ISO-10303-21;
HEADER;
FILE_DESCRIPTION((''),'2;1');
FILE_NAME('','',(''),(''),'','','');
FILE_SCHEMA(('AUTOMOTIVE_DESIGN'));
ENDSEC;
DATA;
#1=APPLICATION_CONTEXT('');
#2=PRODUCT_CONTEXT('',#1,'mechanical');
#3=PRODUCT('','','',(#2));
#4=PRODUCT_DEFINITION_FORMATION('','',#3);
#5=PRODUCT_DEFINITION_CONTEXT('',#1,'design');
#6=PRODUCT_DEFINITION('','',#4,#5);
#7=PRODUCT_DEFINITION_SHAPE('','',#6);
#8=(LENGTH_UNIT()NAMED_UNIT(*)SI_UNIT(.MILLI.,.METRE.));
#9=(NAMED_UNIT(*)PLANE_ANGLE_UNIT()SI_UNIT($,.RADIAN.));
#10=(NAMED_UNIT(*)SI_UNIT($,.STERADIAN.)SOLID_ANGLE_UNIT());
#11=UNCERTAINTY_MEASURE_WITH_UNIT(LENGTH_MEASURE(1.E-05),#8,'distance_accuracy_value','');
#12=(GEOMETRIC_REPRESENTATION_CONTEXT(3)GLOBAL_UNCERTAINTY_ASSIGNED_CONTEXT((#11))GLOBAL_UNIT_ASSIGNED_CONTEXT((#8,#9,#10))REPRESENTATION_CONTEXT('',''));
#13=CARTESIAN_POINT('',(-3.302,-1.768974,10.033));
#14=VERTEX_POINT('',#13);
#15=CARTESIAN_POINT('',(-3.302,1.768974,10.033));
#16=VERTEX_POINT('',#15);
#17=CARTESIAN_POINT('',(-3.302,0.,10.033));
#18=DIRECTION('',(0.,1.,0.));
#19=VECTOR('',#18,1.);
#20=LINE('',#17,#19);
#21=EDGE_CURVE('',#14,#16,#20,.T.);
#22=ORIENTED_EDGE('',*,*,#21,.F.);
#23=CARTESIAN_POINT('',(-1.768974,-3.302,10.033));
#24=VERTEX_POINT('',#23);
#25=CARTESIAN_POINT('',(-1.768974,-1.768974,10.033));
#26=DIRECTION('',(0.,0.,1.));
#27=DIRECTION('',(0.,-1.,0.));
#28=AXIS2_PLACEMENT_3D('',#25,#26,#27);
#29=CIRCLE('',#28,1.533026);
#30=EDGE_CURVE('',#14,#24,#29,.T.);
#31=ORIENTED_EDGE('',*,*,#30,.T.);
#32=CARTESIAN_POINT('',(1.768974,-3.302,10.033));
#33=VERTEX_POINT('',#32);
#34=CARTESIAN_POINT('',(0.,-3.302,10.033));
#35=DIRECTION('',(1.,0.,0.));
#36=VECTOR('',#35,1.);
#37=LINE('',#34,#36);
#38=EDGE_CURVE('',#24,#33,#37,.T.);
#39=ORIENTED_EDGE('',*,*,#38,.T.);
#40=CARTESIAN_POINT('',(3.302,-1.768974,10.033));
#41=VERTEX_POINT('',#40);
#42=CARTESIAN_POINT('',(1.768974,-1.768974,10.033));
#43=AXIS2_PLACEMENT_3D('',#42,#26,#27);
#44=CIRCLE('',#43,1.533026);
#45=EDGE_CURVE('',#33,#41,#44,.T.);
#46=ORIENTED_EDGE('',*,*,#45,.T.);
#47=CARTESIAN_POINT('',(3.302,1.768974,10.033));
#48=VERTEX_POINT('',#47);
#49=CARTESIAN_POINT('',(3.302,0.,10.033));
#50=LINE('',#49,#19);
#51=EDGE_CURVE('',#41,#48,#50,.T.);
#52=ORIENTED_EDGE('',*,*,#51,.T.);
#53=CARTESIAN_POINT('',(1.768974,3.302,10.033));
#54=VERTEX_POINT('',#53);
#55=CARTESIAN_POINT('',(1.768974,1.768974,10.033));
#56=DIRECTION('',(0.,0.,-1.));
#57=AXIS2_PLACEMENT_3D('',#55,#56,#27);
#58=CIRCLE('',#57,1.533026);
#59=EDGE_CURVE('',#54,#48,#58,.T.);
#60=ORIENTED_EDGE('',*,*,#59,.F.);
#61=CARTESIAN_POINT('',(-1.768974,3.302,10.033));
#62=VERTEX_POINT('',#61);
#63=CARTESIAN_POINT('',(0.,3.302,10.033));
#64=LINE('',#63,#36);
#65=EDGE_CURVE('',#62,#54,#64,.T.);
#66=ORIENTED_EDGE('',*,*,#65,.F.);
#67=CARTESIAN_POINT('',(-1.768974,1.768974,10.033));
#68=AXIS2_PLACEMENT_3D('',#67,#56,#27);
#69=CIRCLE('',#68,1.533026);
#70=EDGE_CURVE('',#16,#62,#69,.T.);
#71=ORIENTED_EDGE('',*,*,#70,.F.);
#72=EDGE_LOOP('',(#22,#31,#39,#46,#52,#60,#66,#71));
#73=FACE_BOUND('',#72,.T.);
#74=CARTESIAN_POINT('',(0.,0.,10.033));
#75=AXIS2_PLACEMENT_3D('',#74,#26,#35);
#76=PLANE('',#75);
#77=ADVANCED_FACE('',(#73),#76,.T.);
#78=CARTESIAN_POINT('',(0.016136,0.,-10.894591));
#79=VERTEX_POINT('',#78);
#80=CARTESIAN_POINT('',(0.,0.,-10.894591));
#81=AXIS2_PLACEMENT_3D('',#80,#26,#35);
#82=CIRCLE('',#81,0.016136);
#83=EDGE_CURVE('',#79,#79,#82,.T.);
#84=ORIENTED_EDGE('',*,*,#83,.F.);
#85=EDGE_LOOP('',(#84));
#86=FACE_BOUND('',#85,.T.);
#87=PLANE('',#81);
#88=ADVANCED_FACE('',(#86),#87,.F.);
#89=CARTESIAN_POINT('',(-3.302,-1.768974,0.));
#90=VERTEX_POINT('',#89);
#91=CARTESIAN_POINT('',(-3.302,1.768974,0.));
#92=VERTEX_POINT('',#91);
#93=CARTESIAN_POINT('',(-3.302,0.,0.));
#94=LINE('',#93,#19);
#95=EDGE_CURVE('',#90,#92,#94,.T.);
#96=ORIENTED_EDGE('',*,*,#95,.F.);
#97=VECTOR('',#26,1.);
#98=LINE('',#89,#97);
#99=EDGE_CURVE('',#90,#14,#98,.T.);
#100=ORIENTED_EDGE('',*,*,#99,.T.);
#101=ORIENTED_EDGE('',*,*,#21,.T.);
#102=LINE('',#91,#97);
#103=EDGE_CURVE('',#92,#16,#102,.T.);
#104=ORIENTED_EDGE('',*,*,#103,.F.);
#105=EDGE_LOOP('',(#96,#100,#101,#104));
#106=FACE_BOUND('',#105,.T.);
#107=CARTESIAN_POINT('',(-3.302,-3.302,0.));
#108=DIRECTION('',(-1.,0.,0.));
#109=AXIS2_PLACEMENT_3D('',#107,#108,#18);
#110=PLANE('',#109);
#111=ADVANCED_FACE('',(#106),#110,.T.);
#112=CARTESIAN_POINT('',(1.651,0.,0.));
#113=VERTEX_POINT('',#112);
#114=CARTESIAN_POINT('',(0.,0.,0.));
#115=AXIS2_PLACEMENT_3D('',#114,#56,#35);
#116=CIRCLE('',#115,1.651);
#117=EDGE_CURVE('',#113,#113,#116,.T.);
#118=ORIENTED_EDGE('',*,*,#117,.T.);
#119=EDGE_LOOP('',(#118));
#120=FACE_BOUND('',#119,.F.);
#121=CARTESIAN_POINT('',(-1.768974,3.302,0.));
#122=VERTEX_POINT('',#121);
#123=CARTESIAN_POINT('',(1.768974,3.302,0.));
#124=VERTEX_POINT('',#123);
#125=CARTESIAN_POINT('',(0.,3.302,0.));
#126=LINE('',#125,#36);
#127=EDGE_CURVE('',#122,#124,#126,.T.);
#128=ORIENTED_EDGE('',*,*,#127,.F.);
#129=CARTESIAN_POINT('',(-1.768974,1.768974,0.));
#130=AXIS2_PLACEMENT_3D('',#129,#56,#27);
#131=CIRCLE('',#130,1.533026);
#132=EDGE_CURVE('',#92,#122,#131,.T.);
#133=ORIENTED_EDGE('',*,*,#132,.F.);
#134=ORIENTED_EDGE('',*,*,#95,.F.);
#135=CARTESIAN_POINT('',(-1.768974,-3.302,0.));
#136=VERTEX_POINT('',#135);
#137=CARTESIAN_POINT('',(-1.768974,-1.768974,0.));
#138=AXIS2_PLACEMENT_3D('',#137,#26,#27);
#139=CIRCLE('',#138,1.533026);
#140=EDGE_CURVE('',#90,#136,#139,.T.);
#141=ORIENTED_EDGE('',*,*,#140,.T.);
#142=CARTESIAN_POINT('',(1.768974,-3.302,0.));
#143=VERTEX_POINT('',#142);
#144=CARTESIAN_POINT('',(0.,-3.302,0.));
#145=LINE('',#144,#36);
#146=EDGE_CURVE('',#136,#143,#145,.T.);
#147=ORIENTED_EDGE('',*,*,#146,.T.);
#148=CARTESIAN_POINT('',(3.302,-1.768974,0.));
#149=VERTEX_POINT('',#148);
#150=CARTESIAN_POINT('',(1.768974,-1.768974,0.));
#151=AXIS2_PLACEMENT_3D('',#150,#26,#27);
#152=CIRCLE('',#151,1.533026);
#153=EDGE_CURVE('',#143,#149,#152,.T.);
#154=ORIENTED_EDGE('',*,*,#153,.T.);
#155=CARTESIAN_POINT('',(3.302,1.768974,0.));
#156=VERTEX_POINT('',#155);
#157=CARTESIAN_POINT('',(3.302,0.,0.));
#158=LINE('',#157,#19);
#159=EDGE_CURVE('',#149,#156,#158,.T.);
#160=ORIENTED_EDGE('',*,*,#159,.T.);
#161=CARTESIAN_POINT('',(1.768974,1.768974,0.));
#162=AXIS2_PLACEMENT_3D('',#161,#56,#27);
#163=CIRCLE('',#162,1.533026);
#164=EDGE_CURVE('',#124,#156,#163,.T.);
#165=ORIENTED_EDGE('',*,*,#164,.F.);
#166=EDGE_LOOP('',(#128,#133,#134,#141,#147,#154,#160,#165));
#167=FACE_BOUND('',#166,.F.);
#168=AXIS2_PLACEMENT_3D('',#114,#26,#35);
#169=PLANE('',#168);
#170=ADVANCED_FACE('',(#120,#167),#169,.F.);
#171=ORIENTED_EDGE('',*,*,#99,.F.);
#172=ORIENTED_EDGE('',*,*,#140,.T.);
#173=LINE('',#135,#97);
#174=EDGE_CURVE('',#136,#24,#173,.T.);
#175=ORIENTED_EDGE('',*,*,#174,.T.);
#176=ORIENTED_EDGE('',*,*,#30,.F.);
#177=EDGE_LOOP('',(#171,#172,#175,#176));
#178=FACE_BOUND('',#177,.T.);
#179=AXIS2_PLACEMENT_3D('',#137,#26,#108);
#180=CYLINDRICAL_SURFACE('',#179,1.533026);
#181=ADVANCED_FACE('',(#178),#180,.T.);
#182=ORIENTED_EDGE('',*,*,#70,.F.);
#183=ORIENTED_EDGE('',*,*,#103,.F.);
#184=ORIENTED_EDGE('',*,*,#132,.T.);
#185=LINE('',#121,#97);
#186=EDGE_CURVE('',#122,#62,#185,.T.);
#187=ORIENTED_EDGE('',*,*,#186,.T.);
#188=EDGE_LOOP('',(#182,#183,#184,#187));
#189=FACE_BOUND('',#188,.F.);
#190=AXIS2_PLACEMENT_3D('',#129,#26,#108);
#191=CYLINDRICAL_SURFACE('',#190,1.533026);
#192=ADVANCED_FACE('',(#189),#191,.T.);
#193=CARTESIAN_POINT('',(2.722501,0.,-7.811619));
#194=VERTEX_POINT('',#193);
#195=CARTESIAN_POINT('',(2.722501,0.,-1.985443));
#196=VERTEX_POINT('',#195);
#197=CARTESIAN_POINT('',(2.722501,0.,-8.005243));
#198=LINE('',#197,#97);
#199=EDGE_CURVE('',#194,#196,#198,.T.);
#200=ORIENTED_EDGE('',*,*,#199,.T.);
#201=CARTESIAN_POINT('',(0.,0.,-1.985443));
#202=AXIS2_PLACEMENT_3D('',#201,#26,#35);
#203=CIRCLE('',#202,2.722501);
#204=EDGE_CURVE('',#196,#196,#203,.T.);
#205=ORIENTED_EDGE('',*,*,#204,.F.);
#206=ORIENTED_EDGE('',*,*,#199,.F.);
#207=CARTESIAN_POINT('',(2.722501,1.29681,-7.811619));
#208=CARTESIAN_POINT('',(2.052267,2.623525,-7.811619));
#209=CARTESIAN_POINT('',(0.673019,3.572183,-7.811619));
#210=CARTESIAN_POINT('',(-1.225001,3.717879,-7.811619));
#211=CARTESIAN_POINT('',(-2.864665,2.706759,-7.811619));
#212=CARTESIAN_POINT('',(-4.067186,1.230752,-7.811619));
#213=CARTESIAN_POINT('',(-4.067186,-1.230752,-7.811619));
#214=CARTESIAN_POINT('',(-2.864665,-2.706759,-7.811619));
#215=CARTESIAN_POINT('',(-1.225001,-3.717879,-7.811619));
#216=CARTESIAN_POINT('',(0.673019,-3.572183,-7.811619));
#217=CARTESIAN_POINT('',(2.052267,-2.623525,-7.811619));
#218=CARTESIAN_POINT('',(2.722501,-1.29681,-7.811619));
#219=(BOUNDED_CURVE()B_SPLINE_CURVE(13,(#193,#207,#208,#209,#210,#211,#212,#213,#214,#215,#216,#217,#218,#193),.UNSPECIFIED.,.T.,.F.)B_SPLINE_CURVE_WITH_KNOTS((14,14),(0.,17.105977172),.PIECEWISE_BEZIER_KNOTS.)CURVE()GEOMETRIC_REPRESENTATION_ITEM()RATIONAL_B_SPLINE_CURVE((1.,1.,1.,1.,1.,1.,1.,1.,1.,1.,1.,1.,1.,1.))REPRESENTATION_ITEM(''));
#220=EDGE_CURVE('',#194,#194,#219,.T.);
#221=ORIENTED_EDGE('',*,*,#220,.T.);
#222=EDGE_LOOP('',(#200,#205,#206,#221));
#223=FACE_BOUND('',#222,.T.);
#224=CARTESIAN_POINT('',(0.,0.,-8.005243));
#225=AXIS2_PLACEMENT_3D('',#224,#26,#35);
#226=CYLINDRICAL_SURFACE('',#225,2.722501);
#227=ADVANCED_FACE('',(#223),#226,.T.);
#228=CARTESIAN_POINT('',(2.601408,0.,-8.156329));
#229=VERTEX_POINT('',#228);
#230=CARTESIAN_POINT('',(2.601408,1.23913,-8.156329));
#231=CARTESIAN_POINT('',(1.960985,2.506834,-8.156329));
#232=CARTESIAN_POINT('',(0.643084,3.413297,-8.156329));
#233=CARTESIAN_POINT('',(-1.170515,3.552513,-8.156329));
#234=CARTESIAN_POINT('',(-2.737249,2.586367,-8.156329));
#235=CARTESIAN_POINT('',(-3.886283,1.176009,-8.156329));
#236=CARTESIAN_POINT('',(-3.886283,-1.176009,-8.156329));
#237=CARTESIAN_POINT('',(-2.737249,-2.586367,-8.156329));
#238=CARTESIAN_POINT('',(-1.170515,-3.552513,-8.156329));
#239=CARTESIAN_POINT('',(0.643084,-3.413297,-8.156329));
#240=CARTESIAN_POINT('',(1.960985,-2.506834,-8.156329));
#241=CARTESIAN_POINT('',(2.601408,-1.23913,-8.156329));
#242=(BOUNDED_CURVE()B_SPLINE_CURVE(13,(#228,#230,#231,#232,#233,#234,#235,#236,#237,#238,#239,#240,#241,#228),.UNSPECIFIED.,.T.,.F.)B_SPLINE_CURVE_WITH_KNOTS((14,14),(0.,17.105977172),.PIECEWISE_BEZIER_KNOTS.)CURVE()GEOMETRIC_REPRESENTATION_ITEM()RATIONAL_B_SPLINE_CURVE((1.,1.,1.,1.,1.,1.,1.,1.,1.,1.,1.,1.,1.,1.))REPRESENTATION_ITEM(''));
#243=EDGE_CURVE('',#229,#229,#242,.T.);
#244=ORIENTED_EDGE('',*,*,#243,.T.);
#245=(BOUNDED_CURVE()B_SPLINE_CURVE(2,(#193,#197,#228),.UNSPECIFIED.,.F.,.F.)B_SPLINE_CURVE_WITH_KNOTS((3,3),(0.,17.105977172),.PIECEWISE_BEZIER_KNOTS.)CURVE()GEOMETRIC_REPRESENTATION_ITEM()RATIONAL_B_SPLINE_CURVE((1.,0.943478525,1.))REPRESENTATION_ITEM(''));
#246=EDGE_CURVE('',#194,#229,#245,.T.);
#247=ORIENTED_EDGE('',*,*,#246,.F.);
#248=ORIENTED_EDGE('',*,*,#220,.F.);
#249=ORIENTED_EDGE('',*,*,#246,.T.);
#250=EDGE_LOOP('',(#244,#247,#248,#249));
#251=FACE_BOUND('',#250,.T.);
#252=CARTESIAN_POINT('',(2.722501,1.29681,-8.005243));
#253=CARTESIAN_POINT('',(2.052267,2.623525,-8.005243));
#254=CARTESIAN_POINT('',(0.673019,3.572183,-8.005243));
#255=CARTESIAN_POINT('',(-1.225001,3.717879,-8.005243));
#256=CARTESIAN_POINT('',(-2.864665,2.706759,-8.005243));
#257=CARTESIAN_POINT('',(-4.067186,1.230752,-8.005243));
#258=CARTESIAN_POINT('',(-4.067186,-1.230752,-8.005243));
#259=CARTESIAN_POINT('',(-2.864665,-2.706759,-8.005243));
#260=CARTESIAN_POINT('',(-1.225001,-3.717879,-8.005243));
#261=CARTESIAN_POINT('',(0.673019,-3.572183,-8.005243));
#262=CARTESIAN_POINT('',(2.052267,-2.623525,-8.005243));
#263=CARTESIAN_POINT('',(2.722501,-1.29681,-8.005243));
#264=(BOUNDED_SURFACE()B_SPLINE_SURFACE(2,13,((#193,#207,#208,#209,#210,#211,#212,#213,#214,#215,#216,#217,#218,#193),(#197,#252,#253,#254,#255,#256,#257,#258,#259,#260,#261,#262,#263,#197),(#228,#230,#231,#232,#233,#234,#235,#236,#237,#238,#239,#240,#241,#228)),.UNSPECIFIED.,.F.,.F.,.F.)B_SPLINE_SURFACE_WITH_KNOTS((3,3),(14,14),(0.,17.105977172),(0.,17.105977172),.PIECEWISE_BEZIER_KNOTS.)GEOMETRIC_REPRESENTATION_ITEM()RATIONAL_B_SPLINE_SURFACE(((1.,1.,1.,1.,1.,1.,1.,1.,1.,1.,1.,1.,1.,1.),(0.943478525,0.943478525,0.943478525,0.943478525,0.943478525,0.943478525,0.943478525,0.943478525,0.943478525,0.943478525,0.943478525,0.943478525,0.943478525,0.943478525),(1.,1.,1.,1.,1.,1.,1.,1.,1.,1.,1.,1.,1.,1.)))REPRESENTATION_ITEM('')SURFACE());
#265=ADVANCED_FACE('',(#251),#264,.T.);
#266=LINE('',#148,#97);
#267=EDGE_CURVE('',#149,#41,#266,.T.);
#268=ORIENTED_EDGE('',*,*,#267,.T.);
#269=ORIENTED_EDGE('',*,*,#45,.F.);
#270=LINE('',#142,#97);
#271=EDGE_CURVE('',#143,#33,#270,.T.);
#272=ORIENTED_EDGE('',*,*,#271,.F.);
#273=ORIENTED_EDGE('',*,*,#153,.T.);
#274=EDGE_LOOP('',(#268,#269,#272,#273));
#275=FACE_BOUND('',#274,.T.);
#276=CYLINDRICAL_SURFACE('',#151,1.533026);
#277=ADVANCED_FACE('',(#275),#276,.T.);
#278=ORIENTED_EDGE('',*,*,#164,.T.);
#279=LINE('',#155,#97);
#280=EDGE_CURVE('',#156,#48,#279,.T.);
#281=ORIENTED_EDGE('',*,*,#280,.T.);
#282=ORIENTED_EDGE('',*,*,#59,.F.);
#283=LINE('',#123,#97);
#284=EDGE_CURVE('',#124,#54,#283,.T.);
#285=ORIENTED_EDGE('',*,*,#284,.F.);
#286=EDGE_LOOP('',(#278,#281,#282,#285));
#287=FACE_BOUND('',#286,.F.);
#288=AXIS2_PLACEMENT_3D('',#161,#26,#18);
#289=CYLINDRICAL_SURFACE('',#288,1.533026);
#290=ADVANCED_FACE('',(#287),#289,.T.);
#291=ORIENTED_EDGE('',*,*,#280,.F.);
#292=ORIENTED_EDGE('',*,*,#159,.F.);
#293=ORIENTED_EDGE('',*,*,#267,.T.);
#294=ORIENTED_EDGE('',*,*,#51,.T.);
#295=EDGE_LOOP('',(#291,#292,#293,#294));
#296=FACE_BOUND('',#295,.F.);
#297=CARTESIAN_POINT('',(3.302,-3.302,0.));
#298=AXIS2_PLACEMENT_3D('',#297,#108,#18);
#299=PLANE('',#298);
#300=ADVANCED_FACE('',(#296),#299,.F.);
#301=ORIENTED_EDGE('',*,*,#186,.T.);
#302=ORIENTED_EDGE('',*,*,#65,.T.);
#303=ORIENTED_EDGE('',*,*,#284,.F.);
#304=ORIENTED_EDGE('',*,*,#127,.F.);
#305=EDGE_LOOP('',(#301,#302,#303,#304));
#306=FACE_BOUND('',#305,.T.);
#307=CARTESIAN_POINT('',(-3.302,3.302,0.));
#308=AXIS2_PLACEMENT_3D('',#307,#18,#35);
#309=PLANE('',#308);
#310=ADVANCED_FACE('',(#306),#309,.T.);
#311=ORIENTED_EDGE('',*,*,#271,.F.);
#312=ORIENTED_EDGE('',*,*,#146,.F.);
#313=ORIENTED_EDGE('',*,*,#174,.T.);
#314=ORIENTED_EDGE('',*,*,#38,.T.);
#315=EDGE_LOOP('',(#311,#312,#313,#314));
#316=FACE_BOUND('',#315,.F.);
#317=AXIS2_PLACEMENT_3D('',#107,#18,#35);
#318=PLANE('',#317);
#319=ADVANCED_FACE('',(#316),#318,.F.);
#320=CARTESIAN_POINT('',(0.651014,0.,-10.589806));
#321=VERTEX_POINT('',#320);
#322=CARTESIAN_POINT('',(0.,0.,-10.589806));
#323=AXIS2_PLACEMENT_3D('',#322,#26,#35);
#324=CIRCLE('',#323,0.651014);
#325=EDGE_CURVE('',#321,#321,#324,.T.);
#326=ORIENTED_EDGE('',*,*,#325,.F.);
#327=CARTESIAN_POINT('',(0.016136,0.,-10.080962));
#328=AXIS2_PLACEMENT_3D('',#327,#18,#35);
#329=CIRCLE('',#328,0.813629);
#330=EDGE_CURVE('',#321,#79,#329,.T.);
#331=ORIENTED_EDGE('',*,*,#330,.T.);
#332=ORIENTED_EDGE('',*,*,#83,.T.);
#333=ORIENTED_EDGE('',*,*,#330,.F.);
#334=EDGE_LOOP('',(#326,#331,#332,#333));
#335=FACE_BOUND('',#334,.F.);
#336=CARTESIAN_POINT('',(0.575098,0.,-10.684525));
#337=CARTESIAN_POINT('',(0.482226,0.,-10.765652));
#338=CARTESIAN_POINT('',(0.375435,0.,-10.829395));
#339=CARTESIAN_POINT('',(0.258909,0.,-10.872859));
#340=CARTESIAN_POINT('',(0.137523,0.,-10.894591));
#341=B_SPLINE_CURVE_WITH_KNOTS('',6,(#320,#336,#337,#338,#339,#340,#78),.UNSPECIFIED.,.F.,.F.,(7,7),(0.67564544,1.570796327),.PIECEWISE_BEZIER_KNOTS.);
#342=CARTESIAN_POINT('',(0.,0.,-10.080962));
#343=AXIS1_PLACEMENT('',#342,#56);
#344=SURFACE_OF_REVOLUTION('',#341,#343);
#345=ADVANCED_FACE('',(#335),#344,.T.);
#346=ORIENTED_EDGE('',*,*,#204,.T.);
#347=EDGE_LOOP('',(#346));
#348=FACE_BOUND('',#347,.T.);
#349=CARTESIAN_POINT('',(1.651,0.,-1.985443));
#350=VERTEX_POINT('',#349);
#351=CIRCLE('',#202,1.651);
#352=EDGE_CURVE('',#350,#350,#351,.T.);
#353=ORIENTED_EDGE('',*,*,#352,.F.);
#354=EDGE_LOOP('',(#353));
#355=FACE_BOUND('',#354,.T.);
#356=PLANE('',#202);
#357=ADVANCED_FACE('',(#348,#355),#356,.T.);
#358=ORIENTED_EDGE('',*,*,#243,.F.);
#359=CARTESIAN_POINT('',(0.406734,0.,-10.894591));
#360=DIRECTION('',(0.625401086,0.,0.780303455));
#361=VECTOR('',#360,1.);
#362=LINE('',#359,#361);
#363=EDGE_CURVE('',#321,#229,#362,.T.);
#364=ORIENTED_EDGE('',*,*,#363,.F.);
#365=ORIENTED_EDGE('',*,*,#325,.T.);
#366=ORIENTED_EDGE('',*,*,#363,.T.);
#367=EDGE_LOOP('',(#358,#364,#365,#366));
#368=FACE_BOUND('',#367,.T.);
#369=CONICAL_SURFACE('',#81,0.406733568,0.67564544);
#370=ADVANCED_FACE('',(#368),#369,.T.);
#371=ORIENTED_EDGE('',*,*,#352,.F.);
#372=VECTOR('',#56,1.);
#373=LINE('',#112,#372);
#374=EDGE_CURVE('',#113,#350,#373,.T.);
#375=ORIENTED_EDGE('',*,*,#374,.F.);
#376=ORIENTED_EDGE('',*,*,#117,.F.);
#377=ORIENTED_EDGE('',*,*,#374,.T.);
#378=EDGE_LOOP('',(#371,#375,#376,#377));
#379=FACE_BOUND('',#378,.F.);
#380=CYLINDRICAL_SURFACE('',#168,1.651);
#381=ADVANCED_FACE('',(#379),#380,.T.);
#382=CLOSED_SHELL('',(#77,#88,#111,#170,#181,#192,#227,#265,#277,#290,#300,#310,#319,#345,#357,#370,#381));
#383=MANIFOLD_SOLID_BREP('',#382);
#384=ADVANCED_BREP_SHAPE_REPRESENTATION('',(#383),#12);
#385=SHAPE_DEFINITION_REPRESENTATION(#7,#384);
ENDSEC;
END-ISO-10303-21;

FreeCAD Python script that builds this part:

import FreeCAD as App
import Part
import Sketcher

V = App.Vector
Q = App.Units.Quantity


def edges_at(feature, points):
    """Names of the edges that pass closest to the given points."""
    edges = feature.Shape.Edges
    near = lambda p: min(range(len(edges)), key=lambda i: edges[i].distToShape(Part.Vertex(*p))[0])
    return sorted({f"Edge{near(p) + 1}" for p in points})


def add_polygon(sketch, points):
    """Adds a closed chain of lines whose ends are joined by coincident constraints."""
    first, n = sketch.GeometryCount, len(points)
    for a, b in zip(points, points[1:] + points[:1]):
        sketch.addGeometry(Part.LineSegment(App.Vector(*a, 0), App.Vector(*b, 0)), False)
    for i in range(n):
        sketch.addConstraint(Sketcher.Constraint("Coincident", first + i, 2, first + (i + 1) % n, 1))

doc = App.newDocument("Part")
params = doc.addObject("Spreadsheet::Sheet", "Params")
for row, (alias, value) in enumerate([
    ("sketch1_width", "0.26 in"),
    ("pad1_length", "0.395 in"),
    ("sketch2_diameter", "0.13 in"),
    ("pad2_length", "0.08 in"),
    ("sketch3_height", "0.237 in"),
    ("revolution_angle", "360 deg"),
    ("fillet_radius", "0.813629 mm"),
    ("fillet2_radius", "1.533026 mm"),
    ("fillet3_radius", "0.0217001 in"),
], start=1):
    params.set(f"A{row}", alias)
    params.set(f"B{row}", "=" + value)
    params.setAlias(f"B{row}", alias)

body = doc.addObject("PartDesign::Body", "Body")

# Sketch on XY plane
sketch1 = doc.addObject("Sketcher::SketchObject", "Sketch")
body.addObject(sketch1)
sketch1.AttachmentSupport = (doc.XY_Plane, [""])
sketch1.MapMode = "FlatFace"
add_polygon(sketch1, [(-3.302, 3.302), (-3.302, -3.302), (3.302, -3.302), (3.302, 3.302)])  # lines 0-3
sketch1.addConstraint(Sketcher.Constraint("Vertical", 0))
sketch1.addConstraint(Sketcher.Constraint("Horizontal", 1))
sketch1.addConstraint(Sketcher.Constraint("Vertical", 2))
sketch1.addConstraint(Sketcher.Constraint("Horizontal", 3))
sketch1.addConstraint(Sketcher.Constraint("Symmetric", 0, 2, 2, 2, -1, 1))
sketch1.addConstraint(Sketcher.Constraint("Equal", 3, 0))
sketch1.addConstraint(Sketcher.Constraint("DistanceX", 1, 1, 1, 2, Q("0.26 in")))
sketch1.setExpression("Constraints[10]", "Params.sketch1_width")
pad1 = doc.addObject("PartDesign::Pad", "Pad")
body.addObject(pad1)
pad1.Profile = sketch1
pad1.setExpression("Length", "Params.pad1_length")

# Sketch on XY plane
sketch2 = doc.addObject("Sketcher::SketchObject", "Sketch001")
body.addObject(sketch2)
sketch2.AttachmentSupport = (doc.XY_Plane, [""])
sketch2.MapMode = "FlatFace"
sketch2.addGeometry(Part.Circle(V(0, 0, 0), V(0, 0, 1), 1.651), False)
sketch2.addConstraint(Sketcher.Constraint("Coincident", 0, 3, -1, 1))
sketch2.addConstraint(Sketcher.Constraint("Diameter", 0, Q("0.13 in")))
sketch2.setExpression("Constraints[1]", "Params.sketch2_diameter")
pad2 = doc.addObject("PartDesign::Pad", "Pad001")
body.addObject(pad2)
pad2.Profile = sketch2
pad2.setExpression("Length", "Params.pad2_length")
pad2.Reversed = True

# Sketch on XZ plane
sketch3 = doc.addObject("Sketcher::SketchObject", "Sketch002")
body.addObject(sketch3)
sketch3.AttachmentSupport = (doc.XZ_Plane, [""])
sketch3.MapMode = "FlatFace"
add_polygon(sketch3, [(2.722501, -1.985443), (0, -1.985443), (0, -10.894591), (0.406734, -10.894591), (2.722501, -8.005243)])  # lines 0-4
sketch3.addConstraint(Sketcher.Constraint("Horizontal", 0))
sketch3.addConstraint(Sketcher.Constraint("Vertical", 1))
sketch3.addConstraint(Sketcher.Constraint("Horizontal", 2))
sketch3.addConstraint(Sketcher.Constraint("Vertical", 4))
sketch3.addConstraint(Sketcher.Constraint("PointOnObject", 0, 2, -2))
sketch3.addConstraint(Sketcher.Constraint("DistanceY", 4, 1, 4, 2, Q("0.237 in")))
sketch3.addConstraint(Sketcher.Constraint("DistanceX", 0, 2, 0, 1, Q("2.722501 mm")))
sketch3.addConstraint(Sketcher.Constraint("Distance", 3, Q("3.702851 mm")))
sketch3.addConstraint(Sketcher.Constraint("DistanceX", 2, 1, 2, 2, Q("0.406734 mm")))
sketch3.addConstraint(Sketcher.Constraint("DistanceY", 1, 2, -1, 1, Q("10.894591 mm")))
sketch3.setExpression("Constraints[10]", "Params.sketch3_height")
revolution = doc.addObject("PartDesign::Revolution", "Revolution")
body.addObject(revolution)
revolution.Profile = sketch3
revolution.ReferenceAxis = (sketch3, ["V_Axis"])
revolution.setExpression("Angle", "Params.revolution_angle")
doc.recompute()

fillet = doc.addObject("PartDesign::Fillet", "Fillet")
body.addObject(fillet)
fillet.Base = (revolution, edges_at(revolution, [(-0.407, 0, -10.895)]))
fillet.setExpression("Radius", "Params.fillet_radius")
doc.recompute()

fillet2 = doc.addObject("PartDesign::Fillet", "Fillet001")
body.addObject(fillet2)
fillet2.Base = (fillet, edges_at(fillet, [
    (-3.302, -3.302, 5.016),
    (3.302, -3.302, 5.016),
    (3.302, 3.302, 5.016),
    (-3.302, 3.302, 5.016),
]))
fillet2.setExpression("Radius", "Params.fillet2_radius")
doc.recompute()

fillet3 = doc.addObject("PartDesign::Fillet", "Fillet002")
body.addObject(fillet3)
fillet3.Base = (fillet2, edges_at(fillet2, [(-2.723, 0, -8.005)]))
fillet3.setExpression("Radius", "Params.fillet3_radius")

doc.recompute()
